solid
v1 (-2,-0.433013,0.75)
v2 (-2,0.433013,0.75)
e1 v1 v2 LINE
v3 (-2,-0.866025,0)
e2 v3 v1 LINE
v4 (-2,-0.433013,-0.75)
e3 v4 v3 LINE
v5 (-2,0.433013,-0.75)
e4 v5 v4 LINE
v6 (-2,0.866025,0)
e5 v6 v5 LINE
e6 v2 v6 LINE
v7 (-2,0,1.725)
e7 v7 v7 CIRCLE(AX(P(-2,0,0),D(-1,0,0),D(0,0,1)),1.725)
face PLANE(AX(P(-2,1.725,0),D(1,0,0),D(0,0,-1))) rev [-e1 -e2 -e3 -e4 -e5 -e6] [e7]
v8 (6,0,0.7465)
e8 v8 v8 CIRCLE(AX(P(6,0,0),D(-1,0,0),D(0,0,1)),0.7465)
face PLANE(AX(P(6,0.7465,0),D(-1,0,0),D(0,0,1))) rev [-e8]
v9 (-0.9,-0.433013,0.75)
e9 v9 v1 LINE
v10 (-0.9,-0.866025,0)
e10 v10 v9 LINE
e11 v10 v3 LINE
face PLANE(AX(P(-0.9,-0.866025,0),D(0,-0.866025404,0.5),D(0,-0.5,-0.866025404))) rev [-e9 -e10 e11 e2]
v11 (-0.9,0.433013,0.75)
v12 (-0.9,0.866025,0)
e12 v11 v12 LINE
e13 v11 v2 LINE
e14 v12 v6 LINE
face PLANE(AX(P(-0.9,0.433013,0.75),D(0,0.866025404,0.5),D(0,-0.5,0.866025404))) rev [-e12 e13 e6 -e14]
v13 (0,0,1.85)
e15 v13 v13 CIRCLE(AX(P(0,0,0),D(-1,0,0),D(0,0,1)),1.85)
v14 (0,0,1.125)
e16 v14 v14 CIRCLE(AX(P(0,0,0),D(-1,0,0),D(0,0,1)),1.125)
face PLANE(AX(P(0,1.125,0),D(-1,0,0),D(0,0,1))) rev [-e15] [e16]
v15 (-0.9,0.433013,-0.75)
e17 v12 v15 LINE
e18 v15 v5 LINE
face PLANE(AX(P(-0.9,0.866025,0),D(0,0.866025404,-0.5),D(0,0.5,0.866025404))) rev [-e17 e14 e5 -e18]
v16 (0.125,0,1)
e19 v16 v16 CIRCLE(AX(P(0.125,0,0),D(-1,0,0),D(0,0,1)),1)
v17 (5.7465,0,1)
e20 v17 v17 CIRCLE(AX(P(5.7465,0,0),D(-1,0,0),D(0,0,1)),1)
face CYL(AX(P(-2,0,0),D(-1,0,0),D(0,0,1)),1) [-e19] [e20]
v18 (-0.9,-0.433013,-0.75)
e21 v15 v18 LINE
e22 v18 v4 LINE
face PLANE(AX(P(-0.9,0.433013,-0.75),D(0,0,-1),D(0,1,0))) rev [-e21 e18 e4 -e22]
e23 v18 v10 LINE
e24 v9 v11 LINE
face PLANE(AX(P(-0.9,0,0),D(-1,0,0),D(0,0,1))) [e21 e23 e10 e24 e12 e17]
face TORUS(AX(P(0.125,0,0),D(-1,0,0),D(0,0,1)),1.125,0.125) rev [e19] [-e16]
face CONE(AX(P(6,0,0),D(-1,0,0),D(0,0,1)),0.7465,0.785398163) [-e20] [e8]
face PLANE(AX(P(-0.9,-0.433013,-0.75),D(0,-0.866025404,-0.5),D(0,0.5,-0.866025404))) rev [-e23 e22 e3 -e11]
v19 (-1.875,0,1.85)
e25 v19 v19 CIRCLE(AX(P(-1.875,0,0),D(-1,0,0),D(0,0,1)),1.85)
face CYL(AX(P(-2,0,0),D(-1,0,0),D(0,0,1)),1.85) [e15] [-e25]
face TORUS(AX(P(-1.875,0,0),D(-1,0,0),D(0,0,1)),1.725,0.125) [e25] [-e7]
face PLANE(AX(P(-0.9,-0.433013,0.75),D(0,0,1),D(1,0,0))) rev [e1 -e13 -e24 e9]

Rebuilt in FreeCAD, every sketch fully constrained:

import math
import FreeCAD as App
import Part
import Sketcher

V = App.Vector
Q = App.Units.Quantity


def add_polygon(sketch, points):
    """Adds a closed chain of lines whose ends are joined by coincident constraints."""
    first, n = sketch.GeometryCount, len(points)
    for a, b in zip(points, points[1:] + points[:1]):
        sketch.addGeometry(Part.LineSegment(App.Vector(*a, 0), App.Vector(*b, 0)), False)
    for i in range(n):
        sketch.addConstraint(Sketcher.Constraint("Coincident", first + i, 2, first + (i + 1) % n, 1))

doc = App.newDocument("Part")
body = doc.addObject("PartDesign::Body", "Body")

sketch1 = body.newObject("Sketcher::SketchObject", "Sketch")
sketch1.AttachmentSupport = (doc.getObject("XY_Plane"), [""])
sketch1.MapMode = "FlatFace"
sketch1.addGeometry([
    Part.LineSegment(V(5.75, 1, 0), V(0.12, 1, 0)),
    Part.ArcOfCircle(Part.Circle(V(0.12, 1.12, 0), V(0, 0, 1), 0.12), math.radians(180), math.radians(270)),
    Part.LineSegment(V(0, 1.12, 0), V(0, 1.85, 0)),
    Part.LineSegment(V(0, 1.85, 0), V(-1.88, 1.85, 0)),
    Part.ArcOfCircle(Part.Circle(V(-1.88, 1.73, 0), V(0, 0, 1), 0.12), math.radians(90), math.radians(180)),
    Part.LineSegment(V(-2, 1.73, 0), V(-2, 0, 0)),
    Part.LineSegment(V(-2, 0, 0), V(6, 0, 0)),
    Part.LineSegment(V(6, 0, 0), V(6, 0.75, 0)),
    Part.LineSegment(V(6, 0.75, 0), V(5.75, 1, 0)),
], False)
sketch1.addConstraint([
    Sketcher.Constraint("Tangent", 0, 2, 1, 2),
    Sketcher.Constraint("Tangent", 1, 1, 2, 1),
    Sketcher.Constraint("Coincident", 2, 2, 3, 1),
    Sketcher.Constraint("Tangent", 3, 2, 4, 1),
    Sketcher.Constraint("Tangent", 4, 2, 5, 1),
    Sketcher.Constraint("Coincident", 5, 2, 6, 1),
    Sketcher.Constraint("Coincident", 6, 2, 7, 1),
    Sketcher.Constraint("Coincident", 7, 2, 8, 1),
    Sketcher.Constraint("Coincident", 8, 2, 0, 1),
    Sketcher.Constraint("Horizontal", 0),
    Sketcher.Constraint("Vertical", 2),
    Sketcher.Constraint("Horizontal", 3),
    Sketcher.Constraint("Vertical", 5),
    Sketcher.Constraint("Horizontal", 6),
    Sketcher.Constraint("Vertical", 7),
    Sketcher.Constraint("Equal", 1, 4),
    Sketcher.Constraint("PointOnObject", 1, 1, -2),
    Sketcher.Constraint("PointOnObject", 5, 2, -1),
    Sketcher.Constraint("DistanceX", 6, 1, 6, 2, 8.0),
    Sketcher.Constraint("Angle", 8, Q("135 deg")),
    Sketcher.Constraint("DistanceY", -1, 1, 0, 2, 1.0),
    Sketcher.Constraint("DistanceX", 4, 2, -1, 1, 2.0),
    Sketcher.Constraint("Radius", 1, 0.125),
    Sketcher.Constraint("DistanceY", 1, 3, 4, 3, 0.6),
    Sketcher.Constraint("DistanceX", 0, 2, 0, 1, 5.6215),
])
revolution = body.newObject("PartDesign::Revolution", "Revolution")
revolution.Profile = sketch1
revolution.ReferenceAxis = (sketch1, ["H_Axis"])
revolution.Angle = 360

sketch2 = body.newObject("Sketcher::SketchObject", "Sketch001")
sketch2.AttachmentSupport = (doc.getObject("YZ_Plane"), [""])
sketch2.MapMode = "FlatFace"
sketch2.AttachmentOffset = App.Placement(V(0, 0, -2), App.Rotation())
add_polygon(sketch2, [(0.4, 0.8), (0.9, 0), (0.4, -0.8), (-0.4, -0.8), (-0.9, 0), (-0.4, 0.8)])
sketch2.addConstraint([
    Sketcher.Constraint("Horizontal", 2),
    Sketcher.Constraint("Horizontal", 5),
    Sketcher.Constraint("Symmetric", 0, 2, 3, 2, -1, 1),
    Sketcher.Constraint("Symmetric", 1, 2, 4, 2, -1, 1),
    Sketcher.Constraint("PointOnObject", 0, 2, -1),
    Sketcher.Constraint("Parallel", 0, 3),
    Sketcher.Constraint("Vertical", 2, 2, 4, 2),
    Sketcher.Constraint("Angle", 0, Q("-60 deg")),
    Sketcher.Constraint("DistanceY", 2, 2, 4, 2, 1.5),
    Sketcher.Constraint("DistanceX", 2, 2, 2, 1, 0.866025),
])
pocket1 = body.newObject("PartDesign::Pocket", "Pocket")
pocket1.Profile = sketch2
pocket1.Length = 1.1
pocket1.Reversed = True

doc.recompute()
